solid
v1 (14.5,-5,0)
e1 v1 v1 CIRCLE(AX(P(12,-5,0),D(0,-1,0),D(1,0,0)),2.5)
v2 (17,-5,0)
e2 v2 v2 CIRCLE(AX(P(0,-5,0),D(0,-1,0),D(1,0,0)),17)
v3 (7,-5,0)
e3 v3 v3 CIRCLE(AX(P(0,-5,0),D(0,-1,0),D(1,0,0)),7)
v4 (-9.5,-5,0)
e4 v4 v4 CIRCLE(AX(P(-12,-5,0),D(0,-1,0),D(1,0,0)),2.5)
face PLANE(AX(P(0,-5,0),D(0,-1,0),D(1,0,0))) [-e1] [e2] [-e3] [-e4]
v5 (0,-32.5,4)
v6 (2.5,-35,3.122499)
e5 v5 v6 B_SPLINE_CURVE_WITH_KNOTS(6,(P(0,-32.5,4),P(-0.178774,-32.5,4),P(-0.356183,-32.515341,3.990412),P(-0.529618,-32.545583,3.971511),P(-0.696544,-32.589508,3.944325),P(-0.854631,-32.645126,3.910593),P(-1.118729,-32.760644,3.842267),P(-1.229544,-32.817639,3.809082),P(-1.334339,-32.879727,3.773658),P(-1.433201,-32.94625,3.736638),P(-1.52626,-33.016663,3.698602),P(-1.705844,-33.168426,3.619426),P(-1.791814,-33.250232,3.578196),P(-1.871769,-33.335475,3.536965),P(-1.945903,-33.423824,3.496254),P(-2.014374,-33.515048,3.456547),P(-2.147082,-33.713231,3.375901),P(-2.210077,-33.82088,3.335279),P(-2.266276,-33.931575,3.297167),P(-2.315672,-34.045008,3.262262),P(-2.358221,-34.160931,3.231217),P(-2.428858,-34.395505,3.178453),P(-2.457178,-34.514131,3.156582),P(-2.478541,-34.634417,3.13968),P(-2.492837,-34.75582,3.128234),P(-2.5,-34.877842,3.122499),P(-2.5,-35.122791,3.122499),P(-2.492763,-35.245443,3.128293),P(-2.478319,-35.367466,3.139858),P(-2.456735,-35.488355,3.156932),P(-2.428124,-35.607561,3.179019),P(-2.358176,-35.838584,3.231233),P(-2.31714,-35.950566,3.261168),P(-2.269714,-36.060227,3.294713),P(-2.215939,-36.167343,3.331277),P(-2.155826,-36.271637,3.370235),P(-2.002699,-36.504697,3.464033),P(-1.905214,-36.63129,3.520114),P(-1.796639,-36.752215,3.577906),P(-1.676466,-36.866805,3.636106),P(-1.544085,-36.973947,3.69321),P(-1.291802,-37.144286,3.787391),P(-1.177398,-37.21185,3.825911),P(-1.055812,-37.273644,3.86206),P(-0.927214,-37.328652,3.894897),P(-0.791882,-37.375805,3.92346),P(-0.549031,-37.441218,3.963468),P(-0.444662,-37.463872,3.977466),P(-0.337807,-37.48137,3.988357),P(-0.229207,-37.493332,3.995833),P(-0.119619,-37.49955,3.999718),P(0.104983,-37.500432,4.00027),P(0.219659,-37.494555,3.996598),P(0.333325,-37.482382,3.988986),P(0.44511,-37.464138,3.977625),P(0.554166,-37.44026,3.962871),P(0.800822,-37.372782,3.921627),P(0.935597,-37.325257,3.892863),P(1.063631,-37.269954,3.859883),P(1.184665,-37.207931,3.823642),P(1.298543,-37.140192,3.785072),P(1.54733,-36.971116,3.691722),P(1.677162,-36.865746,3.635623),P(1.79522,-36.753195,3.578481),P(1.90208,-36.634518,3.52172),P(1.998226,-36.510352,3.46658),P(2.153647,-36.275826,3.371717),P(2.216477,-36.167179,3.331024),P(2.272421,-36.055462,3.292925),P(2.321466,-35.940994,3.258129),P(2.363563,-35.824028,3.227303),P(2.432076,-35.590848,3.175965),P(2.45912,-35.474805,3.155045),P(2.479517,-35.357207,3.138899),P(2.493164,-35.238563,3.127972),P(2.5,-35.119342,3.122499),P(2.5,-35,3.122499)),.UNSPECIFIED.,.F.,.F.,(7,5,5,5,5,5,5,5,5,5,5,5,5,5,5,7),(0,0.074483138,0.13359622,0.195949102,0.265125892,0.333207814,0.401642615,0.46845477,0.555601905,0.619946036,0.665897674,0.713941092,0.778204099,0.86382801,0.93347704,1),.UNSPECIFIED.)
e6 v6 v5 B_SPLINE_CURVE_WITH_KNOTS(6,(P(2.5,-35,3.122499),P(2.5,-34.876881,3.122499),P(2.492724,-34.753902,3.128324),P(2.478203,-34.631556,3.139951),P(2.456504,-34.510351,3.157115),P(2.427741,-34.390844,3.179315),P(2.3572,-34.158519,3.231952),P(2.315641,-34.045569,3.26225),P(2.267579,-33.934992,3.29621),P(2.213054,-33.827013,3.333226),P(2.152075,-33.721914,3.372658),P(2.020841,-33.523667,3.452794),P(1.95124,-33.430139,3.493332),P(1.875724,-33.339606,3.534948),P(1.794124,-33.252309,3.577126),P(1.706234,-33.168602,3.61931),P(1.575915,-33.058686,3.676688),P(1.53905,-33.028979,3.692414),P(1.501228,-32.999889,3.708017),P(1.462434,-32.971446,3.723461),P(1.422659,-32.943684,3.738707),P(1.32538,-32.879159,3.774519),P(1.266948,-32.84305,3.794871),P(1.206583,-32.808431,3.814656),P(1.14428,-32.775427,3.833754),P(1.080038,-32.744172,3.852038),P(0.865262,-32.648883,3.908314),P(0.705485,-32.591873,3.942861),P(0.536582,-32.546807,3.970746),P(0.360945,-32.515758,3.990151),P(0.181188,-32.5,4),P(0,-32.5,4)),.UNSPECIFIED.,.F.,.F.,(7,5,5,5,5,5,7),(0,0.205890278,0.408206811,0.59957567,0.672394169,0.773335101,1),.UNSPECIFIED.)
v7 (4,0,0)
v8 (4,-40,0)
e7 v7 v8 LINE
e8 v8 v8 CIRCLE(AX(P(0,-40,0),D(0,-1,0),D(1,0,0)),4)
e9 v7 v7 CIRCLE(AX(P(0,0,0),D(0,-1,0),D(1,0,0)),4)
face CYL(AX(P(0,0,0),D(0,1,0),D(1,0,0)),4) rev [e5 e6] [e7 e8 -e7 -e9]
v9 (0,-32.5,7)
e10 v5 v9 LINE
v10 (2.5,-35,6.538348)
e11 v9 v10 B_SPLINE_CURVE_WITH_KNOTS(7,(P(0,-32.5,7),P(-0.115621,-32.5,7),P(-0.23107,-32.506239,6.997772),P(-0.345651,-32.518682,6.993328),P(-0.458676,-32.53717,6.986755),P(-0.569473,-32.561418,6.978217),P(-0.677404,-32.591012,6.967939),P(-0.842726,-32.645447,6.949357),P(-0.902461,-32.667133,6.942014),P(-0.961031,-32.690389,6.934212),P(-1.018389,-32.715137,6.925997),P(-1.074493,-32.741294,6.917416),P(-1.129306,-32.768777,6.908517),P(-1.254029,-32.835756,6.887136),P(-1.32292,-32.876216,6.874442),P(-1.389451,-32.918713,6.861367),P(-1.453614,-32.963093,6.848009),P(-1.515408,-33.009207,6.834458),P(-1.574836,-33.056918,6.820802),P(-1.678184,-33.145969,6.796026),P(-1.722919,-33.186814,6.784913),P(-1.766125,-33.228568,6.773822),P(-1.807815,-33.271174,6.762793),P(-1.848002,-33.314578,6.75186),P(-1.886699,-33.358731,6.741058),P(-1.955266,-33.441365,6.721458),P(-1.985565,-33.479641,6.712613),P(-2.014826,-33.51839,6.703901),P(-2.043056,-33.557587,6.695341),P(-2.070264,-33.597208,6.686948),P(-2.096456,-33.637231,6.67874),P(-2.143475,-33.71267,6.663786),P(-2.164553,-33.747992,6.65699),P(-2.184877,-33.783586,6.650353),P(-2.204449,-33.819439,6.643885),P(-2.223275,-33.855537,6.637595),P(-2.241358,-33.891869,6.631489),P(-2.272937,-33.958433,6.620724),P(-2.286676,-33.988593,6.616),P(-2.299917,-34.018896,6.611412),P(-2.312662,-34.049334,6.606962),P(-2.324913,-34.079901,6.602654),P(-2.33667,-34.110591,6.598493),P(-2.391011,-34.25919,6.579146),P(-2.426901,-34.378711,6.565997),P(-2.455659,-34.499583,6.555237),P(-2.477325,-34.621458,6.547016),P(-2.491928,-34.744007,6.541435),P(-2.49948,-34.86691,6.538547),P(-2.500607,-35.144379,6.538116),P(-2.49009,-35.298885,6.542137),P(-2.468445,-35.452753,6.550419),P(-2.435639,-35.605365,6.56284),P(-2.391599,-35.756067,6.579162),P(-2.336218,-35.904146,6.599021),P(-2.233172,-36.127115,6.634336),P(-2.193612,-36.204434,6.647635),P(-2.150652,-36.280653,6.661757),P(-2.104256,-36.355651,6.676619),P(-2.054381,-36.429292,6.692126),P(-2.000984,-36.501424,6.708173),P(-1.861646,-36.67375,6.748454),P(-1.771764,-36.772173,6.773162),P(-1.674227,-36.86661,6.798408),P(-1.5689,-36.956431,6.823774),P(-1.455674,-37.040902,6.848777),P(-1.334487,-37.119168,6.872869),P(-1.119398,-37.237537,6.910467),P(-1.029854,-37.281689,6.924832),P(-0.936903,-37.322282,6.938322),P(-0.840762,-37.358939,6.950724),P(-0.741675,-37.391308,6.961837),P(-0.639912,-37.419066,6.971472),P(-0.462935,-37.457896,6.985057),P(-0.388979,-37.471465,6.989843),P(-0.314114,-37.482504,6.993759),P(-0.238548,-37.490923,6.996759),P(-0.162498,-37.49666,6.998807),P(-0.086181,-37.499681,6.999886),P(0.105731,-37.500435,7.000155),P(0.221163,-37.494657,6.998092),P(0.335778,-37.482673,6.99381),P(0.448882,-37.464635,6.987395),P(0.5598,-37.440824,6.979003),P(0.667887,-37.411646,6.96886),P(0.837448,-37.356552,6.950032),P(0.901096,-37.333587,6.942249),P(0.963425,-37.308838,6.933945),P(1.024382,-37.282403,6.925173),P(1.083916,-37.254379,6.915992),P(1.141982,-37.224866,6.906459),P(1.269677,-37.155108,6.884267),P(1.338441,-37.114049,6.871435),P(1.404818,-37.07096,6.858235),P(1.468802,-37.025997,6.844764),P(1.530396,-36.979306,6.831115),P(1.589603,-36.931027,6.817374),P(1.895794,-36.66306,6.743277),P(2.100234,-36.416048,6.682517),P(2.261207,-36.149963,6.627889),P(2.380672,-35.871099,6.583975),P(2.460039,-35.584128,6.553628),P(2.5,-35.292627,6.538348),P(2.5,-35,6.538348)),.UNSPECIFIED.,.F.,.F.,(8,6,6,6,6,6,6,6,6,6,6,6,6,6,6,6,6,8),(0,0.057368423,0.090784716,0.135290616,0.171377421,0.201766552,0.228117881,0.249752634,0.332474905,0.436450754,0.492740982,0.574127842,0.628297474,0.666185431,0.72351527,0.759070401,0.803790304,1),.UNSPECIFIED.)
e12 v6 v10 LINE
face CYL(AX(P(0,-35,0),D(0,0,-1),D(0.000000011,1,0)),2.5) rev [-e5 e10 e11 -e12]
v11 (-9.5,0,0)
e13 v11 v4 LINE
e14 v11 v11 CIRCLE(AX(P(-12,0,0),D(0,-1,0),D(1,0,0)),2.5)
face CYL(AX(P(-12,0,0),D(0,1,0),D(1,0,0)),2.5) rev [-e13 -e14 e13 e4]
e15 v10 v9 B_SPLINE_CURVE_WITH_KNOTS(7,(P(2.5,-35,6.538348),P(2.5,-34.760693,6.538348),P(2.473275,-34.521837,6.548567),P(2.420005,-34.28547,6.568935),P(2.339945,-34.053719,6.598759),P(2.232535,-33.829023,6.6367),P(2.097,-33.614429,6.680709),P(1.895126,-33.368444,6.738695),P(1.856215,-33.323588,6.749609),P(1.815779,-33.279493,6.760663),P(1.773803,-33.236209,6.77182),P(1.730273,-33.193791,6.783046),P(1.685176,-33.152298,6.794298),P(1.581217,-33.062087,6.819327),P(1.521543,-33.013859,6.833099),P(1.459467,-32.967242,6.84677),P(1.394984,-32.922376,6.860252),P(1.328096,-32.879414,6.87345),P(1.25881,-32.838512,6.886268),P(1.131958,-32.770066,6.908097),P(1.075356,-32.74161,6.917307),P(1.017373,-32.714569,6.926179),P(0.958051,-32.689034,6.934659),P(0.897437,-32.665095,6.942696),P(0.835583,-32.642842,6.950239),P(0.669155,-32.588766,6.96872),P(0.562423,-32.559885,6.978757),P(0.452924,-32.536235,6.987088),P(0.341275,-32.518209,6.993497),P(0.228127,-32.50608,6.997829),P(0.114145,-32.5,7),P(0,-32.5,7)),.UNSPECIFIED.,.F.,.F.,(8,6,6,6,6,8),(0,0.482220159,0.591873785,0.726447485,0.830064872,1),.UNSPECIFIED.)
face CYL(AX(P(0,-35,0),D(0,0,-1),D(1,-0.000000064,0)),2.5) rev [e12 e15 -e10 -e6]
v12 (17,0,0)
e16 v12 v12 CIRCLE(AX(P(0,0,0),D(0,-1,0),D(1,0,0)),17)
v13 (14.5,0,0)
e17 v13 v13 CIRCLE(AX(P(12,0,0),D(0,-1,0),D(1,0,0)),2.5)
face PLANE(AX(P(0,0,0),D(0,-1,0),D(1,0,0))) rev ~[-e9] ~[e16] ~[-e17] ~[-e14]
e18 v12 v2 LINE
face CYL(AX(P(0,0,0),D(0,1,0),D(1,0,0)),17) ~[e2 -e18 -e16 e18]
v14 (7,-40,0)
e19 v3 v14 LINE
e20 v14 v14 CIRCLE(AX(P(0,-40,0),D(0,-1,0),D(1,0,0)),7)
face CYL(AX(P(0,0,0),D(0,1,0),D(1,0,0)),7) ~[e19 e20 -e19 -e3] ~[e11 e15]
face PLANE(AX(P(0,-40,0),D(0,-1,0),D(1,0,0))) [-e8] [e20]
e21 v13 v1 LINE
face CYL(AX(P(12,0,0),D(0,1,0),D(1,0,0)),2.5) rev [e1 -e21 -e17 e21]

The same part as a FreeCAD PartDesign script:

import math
import FreeCAD as App
import Part
import Sketcher

V = App.Vector

doc = App.newDocument("Part")
body = doc.addObject("PartDesign::Body", "Body")

# Sketch on XZ plane
sketch1 = body.newObject("Sketcher::SketchObject", "Sketch")
sketch1.AttachmentSupport = (doc.getObject("XZ_Plane"), [""])
sketch1.MapMode = "FlatFace"
sketch1.addGeometry([
    Part.Circle(V(0, 0, 0), V(0, 0, 1), 17),
    Part.Circle(V(-12, 0, 0), V(0, 0, 1), 2.5),
    Part.Circle(V(0, 0, 0), V(0, 0, 1), 7),
    Part.Circle(V(12, 0, 0), V(0, 0, 1), 2.5),
], False)
sketch1.addConstraint([
    Sketcher.Constraint("Coincident", 0, 3, -1, 1),
    Sketcher.Constraint("Coincident", 2, 3, -1, 1),
    Sketcher.Constraint("Equal", 1, 3),
    Sketcher.Constraint("Symmetric", 1, 3, 3, 3, -1, 1),
    Sketcher.Constraint("PointOnObject", 1, 3, -1),
    Sketcher.Constraint("Diameter", 0, 34.0),
    Sketcher.Constraint("Diameter", 1, 5.0),
    Sketcher.Constraint("Diameter", 2, 14.0),
    Sketcher.Constraint("DistanceX", 1, 3, -1, 1, 12.0),
])
pad1 = body.newObject("PartDesign::Pad", "Pad")
pad1.Profile = sketch1
pad1.Length = 5

# Sketch on XZ plane
sketch2 = body.newObject("Sketcher::SketchObject", "Sketch001")
sketch2.AttachmentSupport = (doc.getObject("XZ_Plane"), [""])
sketch2.MapMode = "FlatFace"
sketch2.addGeometry([
    Part.Circle(V(0, 0, 0), V(0, 0, 1), 7),
    Part.Circle(V(0, 0, 0), V(0, 0, 1), 4),
], False)
sketch2.addConstraint([
    Sketcher.Constraint("Coincident", 0, 3, -1, 1),
    Sketcher.Constraint("Coincident", 1, 3, -1, 1),
    Sketcher.Constraint("Diameter", 0, 14.0),
    Sketcher.Constraint("Diameter", 1, 8.0),
])
pad2 = body.newObject("PartDesign::Pad", "Pad001")
pad2.Profile = sketch2
pad2.Length = 40

# Sketch on XY plane
sketch3 = body.newObject("Sketcher::SketchObject", "Sketch002")
sketch3.AttachmentSupport = (doc.getObject("XY_Plane"), [""])
sketch3.MapMode = "FlatFace"
sketch3.addGeometry([
    Part.ArcOfCircle(Part.Circle(V(0, -35, 0), V(0, 0, 1), 2.5), math.radians(89.999999), math.radians(360.000001)),
    Part.ArcOfCircle(Part.Circle(V(0, -35, 0), V(0, 0, 1), 2.5), math.radians(-0.000004), math.radians(90.000004)),
], False)
sketch3.addConstraint([
    Sketcher.Constraint("Tangent", 0, 1, 1, 2),
    Sketcher.Constraint("Coincident", 1, 1, 0, 2),
    Sketcher.Constraint("PointOnObject", 0, 3, -2),
    Sketcher.Constraint("PointOnObject", 0, 1, -2),
    Sketcher.Constraint("Horizontal", 0, 3, 1, 1),
    Sketcher.Constraint("Radius", 0, 2.5),
    Sketcher.Constraint("DistanceY", 0, 3, -1, 1, 35.0),
])
pocket1 = body.newObject("PartDesign::Pocket", "Pocket")
pocket1.Profile = sketch3
pocket1.Length = 10
pocket1.Reversed = True

doc.recompute()
